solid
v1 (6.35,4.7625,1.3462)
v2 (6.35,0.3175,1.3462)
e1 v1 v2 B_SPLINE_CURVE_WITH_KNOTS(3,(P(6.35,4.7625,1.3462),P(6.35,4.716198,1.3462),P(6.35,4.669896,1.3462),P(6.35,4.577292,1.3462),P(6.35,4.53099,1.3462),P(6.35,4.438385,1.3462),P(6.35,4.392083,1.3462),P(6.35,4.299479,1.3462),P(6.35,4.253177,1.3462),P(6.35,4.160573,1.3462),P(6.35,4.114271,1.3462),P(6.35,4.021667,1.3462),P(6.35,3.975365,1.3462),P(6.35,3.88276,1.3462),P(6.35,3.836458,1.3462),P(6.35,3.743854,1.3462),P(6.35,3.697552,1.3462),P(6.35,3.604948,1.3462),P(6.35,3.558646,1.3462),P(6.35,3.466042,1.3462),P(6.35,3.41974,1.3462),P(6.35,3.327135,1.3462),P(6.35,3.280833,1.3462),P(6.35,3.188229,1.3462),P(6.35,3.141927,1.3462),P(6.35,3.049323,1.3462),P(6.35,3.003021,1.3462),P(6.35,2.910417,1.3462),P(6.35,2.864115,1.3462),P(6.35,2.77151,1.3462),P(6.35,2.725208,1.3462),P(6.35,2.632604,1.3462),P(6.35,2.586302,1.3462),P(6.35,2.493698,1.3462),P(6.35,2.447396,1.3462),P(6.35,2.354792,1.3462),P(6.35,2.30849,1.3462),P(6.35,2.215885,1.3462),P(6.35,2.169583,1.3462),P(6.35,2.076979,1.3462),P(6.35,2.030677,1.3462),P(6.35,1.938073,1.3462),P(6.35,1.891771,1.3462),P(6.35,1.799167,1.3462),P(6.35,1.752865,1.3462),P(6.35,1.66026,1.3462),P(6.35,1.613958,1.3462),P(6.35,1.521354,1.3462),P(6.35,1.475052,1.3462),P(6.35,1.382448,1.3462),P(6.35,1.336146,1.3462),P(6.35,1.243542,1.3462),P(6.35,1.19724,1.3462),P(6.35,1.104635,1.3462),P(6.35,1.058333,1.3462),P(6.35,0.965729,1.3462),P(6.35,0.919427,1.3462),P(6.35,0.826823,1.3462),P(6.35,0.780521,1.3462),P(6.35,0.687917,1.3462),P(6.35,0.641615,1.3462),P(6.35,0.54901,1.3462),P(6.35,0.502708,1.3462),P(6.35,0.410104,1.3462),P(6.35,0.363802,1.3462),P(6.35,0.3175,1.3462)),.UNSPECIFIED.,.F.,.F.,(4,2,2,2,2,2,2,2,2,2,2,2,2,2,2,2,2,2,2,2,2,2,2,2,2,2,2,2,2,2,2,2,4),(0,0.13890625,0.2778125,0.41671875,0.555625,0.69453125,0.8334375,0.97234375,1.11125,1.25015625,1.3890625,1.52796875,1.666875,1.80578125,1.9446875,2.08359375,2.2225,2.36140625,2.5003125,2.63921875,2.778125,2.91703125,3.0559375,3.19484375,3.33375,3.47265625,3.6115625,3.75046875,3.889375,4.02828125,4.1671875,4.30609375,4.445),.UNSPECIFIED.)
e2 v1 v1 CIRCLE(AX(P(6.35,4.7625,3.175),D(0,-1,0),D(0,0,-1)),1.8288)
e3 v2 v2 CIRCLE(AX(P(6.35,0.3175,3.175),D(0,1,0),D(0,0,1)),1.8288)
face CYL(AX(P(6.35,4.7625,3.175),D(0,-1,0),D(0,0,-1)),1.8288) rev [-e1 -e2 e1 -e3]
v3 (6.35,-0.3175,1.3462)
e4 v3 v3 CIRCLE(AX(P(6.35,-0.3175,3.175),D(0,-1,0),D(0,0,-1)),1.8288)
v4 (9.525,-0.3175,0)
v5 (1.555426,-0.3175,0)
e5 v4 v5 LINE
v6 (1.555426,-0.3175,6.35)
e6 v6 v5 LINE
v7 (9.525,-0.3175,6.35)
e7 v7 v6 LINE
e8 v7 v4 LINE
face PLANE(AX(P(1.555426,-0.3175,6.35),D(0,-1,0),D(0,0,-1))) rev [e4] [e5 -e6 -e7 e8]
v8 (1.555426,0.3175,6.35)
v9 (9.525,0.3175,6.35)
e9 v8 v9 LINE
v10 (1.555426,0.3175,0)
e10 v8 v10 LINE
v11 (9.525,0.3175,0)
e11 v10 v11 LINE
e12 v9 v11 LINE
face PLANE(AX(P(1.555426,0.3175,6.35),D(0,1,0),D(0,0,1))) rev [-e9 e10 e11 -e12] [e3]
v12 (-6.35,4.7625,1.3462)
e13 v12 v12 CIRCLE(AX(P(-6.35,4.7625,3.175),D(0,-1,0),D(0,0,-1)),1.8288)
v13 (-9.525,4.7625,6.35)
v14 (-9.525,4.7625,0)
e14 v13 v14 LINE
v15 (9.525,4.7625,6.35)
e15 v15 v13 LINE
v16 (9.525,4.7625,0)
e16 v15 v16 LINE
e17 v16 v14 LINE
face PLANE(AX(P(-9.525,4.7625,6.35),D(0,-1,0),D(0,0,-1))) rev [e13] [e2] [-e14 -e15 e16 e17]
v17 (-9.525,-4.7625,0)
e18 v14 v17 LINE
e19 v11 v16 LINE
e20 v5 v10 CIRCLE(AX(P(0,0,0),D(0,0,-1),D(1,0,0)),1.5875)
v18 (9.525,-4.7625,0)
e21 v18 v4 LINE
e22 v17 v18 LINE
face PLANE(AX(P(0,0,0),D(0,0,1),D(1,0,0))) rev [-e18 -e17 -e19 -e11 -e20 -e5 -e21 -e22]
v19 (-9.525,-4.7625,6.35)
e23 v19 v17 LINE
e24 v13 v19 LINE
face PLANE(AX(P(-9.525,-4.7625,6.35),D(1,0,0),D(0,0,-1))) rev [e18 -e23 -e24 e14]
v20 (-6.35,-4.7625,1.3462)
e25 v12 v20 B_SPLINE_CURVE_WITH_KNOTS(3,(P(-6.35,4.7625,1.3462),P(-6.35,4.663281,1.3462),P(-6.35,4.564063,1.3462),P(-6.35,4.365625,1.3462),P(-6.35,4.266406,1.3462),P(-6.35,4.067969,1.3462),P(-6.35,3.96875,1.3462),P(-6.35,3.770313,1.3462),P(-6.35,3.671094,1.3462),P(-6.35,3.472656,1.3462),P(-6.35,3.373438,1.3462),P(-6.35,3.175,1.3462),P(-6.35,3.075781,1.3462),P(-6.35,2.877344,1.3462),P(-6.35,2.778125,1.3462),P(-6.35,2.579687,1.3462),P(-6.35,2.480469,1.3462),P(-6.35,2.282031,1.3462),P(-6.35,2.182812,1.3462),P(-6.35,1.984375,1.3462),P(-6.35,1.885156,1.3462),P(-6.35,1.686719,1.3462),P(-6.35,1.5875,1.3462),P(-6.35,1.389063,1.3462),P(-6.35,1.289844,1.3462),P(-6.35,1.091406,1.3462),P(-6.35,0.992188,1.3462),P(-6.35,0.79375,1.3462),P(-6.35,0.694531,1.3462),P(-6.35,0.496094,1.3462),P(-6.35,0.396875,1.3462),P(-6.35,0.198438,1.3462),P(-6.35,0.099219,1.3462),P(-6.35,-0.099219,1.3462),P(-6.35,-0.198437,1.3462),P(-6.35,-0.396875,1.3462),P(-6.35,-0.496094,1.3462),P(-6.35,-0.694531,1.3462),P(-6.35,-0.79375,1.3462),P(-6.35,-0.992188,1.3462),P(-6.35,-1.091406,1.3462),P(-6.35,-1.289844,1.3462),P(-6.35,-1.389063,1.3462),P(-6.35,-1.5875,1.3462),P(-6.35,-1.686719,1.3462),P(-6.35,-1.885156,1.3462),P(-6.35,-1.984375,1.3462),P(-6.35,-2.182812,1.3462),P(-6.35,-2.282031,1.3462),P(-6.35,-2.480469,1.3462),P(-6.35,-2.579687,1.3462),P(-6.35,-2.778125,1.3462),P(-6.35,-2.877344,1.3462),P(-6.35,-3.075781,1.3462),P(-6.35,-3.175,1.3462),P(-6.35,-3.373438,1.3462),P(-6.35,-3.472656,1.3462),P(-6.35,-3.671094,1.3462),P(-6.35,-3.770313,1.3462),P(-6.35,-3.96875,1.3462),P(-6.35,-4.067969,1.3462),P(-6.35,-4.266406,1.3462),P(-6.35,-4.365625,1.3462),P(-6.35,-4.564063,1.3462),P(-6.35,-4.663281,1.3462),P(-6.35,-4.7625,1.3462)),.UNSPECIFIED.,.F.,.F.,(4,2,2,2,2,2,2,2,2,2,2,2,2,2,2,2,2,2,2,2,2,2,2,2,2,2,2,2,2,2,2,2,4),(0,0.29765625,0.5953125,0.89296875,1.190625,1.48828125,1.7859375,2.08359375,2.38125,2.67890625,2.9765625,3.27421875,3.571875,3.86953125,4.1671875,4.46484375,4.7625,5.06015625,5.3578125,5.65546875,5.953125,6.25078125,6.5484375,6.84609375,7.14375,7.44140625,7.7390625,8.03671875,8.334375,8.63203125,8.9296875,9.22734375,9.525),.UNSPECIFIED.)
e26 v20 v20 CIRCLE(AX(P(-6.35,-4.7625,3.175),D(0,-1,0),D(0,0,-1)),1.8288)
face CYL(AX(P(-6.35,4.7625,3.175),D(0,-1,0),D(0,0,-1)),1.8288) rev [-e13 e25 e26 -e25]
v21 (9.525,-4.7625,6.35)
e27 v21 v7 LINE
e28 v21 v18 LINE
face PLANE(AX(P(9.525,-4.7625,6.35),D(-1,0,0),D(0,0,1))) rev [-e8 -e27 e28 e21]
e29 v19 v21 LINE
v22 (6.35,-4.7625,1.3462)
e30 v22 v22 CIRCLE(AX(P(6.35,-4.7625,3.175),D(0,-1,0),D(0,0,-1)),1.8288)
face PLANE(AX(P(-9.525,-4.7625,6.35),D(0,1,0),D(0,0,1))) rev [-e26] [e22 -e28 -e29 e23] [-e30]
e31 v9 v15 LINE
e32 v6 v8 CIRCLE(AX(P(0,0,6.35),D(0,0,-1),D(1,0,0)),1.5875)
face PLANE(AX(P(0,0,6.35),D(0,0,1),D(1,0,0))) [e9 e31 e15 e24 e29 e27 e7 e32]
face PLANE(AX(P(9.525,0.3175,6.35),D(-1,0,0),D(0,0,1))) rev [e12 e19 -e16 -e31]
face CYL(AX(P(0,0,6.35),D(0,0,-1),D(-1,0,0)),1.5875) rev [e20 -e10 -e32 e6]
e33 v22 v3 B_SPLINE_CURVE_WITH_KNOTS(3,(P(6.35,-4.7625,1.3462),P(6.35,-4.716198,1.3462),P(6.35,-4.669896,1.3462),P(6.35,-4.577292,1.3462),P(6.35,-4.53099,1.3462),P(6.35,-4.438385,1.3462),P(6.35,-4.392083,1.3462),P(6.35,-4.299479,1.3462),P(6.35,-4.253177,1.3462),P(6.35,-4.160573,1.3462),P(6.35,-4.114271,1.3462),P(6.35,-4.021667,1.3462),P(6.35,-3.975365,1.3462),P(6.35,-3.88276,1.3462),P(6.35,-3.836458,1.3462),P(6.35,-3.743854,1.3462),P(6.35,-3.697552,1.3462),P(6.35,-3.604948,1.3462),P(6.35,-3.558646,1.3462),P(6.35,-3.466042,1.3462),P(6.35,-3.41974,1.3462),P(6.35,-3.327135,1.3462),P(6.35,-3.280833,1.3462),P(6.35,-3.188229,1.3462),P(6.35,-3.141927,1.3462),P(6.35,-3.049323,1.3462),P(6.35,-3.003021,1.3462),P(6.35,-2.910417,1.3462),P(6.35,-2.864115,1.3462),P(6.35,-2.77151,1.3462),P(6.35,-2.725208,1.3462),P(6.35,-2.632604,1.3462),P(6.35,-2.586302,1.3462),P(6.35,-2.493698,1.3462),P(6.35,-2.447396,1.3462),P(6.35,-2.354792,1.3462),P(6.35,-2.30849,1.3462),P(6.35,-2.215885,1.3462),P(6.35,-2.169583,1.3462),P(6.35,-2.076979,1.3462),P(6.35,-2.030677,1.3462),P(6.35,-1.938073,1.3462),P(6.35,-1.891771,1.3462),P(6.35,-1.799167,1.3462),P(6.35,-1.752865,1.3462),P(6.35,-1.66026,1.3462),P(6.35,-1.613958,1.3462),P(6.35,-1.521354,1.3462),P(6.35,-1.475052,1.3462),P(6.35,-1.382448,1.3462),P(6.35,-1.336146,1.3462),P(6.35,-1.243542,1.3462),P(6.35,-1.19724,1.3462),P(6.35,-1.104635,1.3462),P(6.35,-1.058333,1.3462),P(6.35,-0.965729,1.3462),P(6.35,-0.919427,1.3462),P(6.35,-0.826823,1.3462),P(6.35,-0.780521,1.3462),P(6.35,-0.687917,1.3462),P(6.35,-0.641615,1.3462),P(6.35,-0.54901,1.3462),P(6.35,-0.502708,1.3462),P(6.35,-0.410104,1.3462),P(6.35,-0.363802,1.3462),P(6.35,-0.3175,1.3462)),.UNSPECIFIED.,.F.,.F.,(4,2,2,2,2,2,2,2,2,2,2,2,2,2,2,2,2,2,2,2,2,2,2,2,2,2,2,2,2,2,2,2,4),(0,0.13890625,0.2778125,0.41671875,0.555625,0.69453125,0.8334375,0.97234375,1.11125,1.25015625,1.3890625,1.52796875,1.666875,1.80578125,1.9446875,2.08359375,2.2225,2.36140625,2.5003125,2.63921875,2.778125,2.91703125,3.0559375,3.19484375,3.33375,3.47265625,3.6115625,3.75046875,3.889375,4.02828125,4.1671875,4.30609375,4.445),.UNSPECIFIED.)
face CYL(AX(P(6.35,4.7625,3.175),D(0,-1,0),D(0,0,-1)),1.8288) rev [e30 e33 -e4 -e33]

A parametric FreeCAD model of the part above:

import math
import FreeCAD as App
import Part
import Sketcher

V = App.Vector
Q = App.Units.Quantity

doc = App.newDocument("Part")
body = doc.addObject("PartDesign::Body", "Body")

sketch1 = body.newObject("Sketcher::SketchObject", "Sketch")
sketch1.AttachmentSupport = (doc.getObject("XY_Plane"), [""])
sketch1.MapMode = "FlatFace"
sketch1.addGeometry(Part.LineSegment(V(-9.5, -4.8, 0), V(9.5, -4.8, 0)), False)
sketch1.addGeometry(Part.LineSegment(V(9.5, -4.8, 0), V(9.5, -0.3, 0)), False)
sketch1.addGeometry(Part.LineSegment(V(9.5, -0.3, 0), V(1.6, -0.3, 0)), False)
sketch1.addGeometry(Part.ArcOfCircle(Part.Circle(V(0, 0, 0), V(0, 0, 1), 1.6), math.radians(12), math.radians(348)), False)
sketch1.addGeometry(Part.LineSegment(V(1.6, 0.3, 0), V(9.5, 0.3, 0)), False)
sketch1.addGeometry(Part.LineSegment(V(9.5, 0.3, 0), V(9.5, 4.8, 0)), False)
sketch1.addGeometry(Part.LineSegment(V(9.5, 4.8, 0), V(-9.5, 4.8, 0)), False)
sketch1.addGeometry(Part.LineSegment(V(-9.5, 4.8, 0), V(-9.5, -4.8, 0)), False)
sketch1.addConstraint(Sketcher.Constraint("Coincident", 0, 2, 1, 1))
sketch1.addConstraint(Sketcher.Constraint("Coincident", 1, 2, 2, 1))
sketch1.addConstraint(Sketcher.Constraint("Coincident", 2, 2, 3, 2))
sketch1.addConstraint(Sketcher.Constraint("Coincident", 3, 1, 4, 1))
sketch1.addConstraint(Sketcher.Constraint("Coincident", 4, 2, 5, 1))
sketch1.addConstraint(Sketcher.Constraint("Coincident", 5, 2, 6, 1))
sketch1.addConstraint(Sketcher.Constraint("Coincident", 6, 2, 7, 1))
sketch1.addConstraint(Sketcher.Constraint("Coincident", 7, 2, 0, 1))
sketch1.addConstraint(Sketcher.Constraint("Horizontal", 0))
sketch1.addConstraint(Sketcher.Constraint("Vertical", 1))
sketch1.addConstraint(Sketcher.Constraint("Horizontal", 2))
sketch1.addConstraint(Sketcher.Constraint("Horizontal", 4))
sketch1.addConstraint(Sketcher.Constraint("Vertical", 5))
sketch1.addConstraint(Sketcher.Constraint("Horizontal", 6))
sketch1.addConstraint(Sketcher.Constraint("Vertical", 7))
sketch1.addConstraint(Sketcher.Constraint("Coincident", 3, 3, -1, 1))
sketch1.addConstraint(Sketcher.Constraint("Symmetric", 0, 2, 6, 2, -1, 1))
sketch1.addConstraint(Sketcher.Constraint("Symmetric", 1, 2, 4, 2, -1))
sketch1.addConstraint(Sketcher.Constraint("Radius", 3, Q("0.0625 in")))
sketch1.addConstraint(Sketcher.Constraint("DistanceX", 0, 1, 0, 2, Q("0.75 in")))
sketch1.addConstraint(Sketcher.Constraint("DistanceY", 0, 2, 3, 1, Q("0.2 in")))
sketch1.addConstraint(Sketcher.Constraint("DistanceY", 1, 1, 1, 2, Q("0.175 in")))
pad1 = body.newObject("PartDesign::Pad", "Pad")
pad1.Profile = sketch1
pad1.Length = Q("0.25 in")

sketch2 = body.newObject("Sketcher::SketchObject", "Sketch001")
sketch2.AttachmentSupport = (doc.getObject("XZ_Plane"), [""])
sketch2.MapMode = "FlatFace"
sketch2.AttachmentOffset = App.Placement(V(0, 0, 0.1875 * 25.4), App.Rotation())
sketch2.addGeometry(Part.Circle(V(-6.3, 3.2, 0), V(0, 0, 1), 1.8), False)
sketch2.addGeometry(Part.Circle(V(6.3, 3.2, 0), V(0, 0, 1), 1.8), False)
sketch2.addConstraint(Sketcher.Constraint("Equal", 0, 1))
sketch2.addConstraint(Sketcher.Constraint("Symmetric", 0, 3, 1, 3, -2))
sketch2.addConstraint(Sketcher.Constraint("Diameter", 0, Q("0.144 in")))
sketch2.addConstraint(Sketcher.Constraint("DistanceX", 0, 3, 1, 3, Q("0.5 in")))
sketch2.addConstraint(Sketcher.Constraint("DistanceY", -1, 1, 0, 3, Q("0.125 in")))
pocket1 = body.newObject("PartDesign::Pocket", "Pocket")
pocket1.Profile = sketch2
pocket1.Type = "ThroughAll"

doc.recompute()
